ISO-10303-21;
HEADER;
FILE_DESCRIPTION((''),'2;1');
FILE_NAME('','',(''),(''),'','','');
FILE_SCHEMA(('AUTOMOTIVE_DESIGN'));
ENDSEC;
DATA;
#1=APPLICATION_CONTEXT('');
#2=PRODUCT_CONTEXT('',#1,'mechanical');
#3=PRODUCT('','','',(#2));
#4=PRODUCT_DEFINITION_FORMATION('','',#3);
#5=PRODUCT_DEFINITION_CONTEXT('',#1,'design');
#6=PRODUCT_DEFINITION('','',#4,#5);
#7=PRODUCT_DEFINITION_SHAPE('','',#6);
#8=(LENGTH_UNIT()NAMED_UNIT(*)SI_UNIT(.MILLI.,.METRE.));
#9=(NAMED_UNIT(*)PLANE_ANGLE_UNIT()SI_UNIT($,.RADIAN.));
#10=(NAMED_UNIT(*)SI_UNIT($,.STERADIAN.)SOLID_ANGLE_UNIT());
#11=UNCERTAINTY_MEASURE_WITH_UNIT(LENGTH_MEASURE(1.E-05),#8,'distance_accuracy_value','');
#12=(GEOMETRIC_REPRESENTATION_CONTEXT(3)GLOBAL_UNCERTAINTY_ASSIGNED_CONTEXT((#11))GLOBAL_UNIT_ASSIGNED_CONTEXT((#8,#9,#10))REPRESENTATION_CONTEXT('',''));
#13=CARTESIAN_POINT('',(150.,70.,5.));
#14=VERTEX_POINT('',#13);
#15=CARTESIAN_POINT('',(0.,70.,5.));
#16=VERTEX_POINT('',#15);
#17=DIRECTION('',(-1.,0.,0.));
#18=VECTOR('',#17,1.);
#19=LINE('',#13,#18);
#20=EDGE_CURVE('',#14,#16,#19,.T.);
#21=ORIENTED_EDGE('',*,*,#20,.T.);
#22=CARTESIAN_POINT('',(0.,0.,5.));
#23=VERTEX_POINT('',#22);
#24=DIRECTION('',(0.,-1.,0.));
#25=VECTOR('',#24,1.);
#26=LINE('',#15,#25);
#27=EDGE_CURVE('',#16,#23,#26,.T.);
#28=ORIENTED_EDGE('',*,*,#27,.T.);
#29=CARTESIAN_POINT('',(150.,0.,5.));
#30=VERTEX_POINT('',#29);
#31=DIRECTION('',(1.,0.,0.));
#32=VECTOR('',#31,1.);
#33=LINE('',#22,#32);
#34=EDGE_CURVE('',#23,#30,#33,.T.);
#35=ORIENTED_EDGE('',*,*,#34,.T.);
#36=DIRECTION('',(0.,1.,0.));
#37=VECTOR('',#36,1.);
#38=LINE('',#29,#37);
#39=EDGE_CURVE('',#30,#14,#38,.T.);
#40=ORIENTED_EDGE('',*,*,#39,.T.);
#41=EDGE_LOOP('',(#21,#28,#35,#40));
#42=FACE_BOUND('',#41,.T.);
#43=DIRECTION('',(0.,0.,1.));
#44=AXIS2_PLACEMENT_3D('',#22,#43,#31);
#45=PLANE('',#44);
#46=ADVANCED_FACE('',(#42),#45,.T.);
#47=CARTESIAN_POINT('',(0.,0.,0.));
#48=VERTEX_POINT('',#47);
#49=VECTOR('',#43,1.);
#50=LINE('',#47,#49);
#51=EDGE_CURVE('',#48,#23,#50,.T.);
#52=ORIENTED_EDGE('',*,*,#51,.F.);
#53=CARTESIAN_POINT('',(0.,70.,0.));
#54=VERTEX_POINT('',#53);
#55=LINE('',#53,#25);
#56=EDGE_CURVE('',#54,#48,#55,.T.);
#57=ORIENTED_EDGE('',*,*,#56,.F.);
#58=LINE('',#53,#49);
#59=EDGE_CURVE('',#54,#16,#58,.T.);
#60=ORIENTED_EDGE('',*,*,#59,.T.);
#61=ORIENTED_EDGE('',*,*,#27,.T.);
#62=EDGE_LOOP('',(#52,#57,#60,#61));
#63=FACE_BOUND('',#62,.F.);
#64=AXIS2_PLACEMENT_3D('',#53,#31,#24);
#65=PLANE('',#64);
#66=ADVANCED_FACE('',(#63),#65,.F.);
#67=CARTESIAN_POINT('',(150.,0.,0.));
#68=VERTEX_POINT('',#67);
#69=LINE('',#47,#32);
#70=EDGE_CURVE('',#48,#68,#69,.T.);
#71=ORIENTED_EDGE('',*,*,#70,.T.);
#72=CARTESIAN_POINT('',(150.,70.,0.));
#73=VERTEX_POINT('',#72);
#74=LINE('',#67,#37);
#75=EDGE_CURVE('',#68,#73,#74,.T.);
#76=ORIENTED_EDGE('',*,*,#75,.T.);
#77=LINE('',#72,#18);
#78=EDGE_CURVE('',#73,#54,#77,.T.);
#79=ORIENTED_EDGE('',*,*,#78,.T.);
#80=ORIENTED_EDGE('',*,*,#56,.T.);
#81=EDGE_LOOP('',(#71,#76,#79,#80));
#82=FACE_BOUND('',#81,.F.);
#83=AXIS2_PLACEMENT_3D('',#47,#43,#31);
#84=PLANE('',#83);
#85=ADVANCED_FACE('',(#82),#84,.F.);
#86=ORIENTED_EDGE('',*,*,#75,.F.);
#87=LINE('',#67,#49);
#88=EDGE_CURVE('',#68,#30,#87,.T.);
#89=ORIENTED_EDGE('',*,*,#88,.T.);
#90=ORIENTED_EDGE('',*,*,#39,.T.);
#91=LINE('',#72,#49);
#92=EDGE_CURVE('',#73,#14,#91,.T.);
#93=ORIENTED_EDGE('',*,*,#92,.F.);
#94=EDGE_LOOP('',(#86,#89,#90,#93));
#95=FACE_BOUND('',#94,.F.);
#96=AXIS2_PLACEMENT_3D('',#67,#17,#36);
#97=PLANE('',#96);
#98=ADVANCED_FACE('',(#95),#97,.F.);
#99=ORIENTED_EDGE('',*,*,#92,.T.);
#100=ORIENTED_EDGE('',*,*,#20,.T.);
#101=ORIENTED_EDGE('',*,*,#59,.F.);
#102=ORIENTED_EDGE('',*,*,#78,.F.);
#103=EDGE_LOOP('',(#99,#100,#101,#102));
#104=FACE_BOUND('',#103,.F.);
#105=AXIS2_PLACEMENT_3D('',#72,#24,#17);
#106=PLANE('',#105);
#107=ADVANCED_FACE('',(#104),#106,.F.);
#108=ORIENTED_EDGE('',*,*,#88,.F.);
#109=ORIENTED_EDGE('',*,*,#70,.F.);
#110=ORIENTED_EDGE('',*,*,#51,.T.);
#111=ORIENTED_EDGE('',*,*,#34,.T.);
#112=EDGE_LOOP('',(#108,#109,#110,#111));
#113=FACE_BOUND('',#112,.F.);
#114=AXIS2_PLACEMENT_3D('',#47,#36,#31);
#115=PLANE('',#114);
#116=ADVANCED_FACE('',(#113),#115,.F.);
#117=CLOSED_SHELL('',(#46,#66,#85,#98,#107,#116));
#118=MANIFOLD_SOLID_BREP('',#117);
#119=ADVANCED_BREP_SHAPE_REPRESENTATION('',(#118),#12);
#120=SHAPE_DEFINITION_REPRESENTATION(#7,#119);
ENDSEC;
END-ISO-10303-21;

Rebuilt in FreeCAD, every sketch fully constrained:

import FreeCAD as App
import Part
import Sketcher
from FreeCAD import Vector


def add_polygon(sketch, points):
    """Adds a closed chain of lines whose ends are joined by coincident constraints."""
    first, n = sketch.GeometryCount, len(points)
    for a, b in zip(points, points[1:] + points[:1]):
        sketch.addGeometry(Part.LineSegment(App.Vector(*a, 0), App.Vector(*b, 0)), False)
    for i in range(n):
        sketch.addConstraint(Sketcher.Constraint("Coincident", first + i, 2, first + (i + 1) % n, 1))

doc = App.newDocument("Part")
params = doc.addObject("Spreadsheet::Sheet", "Params")
for row, (alias, value) in enumerate([
    ("sketch1_width", "150 mm"),
    ("sketch1_height", "70 mm"),
    ("pad1_length", "5 mm"),
], start=1):
    params.set(f"A{row}", alias)
    params.set(f"B{row}", "=" + value)
    params.setAlias(f"B{row}", alias)

body = doc.addObject("PartDesign::Body", "Body")

# Sketch on XY plane
sketch1 = doc.addObject("Sketcher::SketchObject", "Sketch")
body.addObject(sketch1)
sketch1.AttachmentSupport = (doc.XY_Plane, [""])
sketch1.MapMode = "FlatFace"
add_polygon(sketch1, [(0, 70), (0, 0), (150, 0), (150, 70)])  # lines 0-3
sketch1.addConstraint(Sketcher.Constraint("Vertical", 0))
sketch1.addConstraint(Sketcher.Constraint("Horizontal", 1))
sketch1.addConstraint(Sketcher.Constraint("Vertical", 2))
sketch1.addConstraint(Sketcher.Constraint("Horizontal", 3))
sketch1.addConstraint(Sketcher.Constraint("Coincident", 0, 2, -1, 1))
sketch1.addConstraint(Sketcher.Constraint("DistanceX", 1, 1, 1, 2, 150.0))
sketch1.addConstraint(Sketcher.Constraint("DistanceY", 0, 2, 0, 1, 70.0))
sketch1.setExpression("Constraints[9]", "Params.sketch1_width")
sketch1.setExpression("Constraints[10]", "Params.sketch1_height")
pad1 = doc.addObject("PartDesign::Pad", "Pad")
body.addObject(pad1)
pad1.Profile = sketch1
pad1.setExpression("Length", "Params.pad1_length")

doc.recompute()
